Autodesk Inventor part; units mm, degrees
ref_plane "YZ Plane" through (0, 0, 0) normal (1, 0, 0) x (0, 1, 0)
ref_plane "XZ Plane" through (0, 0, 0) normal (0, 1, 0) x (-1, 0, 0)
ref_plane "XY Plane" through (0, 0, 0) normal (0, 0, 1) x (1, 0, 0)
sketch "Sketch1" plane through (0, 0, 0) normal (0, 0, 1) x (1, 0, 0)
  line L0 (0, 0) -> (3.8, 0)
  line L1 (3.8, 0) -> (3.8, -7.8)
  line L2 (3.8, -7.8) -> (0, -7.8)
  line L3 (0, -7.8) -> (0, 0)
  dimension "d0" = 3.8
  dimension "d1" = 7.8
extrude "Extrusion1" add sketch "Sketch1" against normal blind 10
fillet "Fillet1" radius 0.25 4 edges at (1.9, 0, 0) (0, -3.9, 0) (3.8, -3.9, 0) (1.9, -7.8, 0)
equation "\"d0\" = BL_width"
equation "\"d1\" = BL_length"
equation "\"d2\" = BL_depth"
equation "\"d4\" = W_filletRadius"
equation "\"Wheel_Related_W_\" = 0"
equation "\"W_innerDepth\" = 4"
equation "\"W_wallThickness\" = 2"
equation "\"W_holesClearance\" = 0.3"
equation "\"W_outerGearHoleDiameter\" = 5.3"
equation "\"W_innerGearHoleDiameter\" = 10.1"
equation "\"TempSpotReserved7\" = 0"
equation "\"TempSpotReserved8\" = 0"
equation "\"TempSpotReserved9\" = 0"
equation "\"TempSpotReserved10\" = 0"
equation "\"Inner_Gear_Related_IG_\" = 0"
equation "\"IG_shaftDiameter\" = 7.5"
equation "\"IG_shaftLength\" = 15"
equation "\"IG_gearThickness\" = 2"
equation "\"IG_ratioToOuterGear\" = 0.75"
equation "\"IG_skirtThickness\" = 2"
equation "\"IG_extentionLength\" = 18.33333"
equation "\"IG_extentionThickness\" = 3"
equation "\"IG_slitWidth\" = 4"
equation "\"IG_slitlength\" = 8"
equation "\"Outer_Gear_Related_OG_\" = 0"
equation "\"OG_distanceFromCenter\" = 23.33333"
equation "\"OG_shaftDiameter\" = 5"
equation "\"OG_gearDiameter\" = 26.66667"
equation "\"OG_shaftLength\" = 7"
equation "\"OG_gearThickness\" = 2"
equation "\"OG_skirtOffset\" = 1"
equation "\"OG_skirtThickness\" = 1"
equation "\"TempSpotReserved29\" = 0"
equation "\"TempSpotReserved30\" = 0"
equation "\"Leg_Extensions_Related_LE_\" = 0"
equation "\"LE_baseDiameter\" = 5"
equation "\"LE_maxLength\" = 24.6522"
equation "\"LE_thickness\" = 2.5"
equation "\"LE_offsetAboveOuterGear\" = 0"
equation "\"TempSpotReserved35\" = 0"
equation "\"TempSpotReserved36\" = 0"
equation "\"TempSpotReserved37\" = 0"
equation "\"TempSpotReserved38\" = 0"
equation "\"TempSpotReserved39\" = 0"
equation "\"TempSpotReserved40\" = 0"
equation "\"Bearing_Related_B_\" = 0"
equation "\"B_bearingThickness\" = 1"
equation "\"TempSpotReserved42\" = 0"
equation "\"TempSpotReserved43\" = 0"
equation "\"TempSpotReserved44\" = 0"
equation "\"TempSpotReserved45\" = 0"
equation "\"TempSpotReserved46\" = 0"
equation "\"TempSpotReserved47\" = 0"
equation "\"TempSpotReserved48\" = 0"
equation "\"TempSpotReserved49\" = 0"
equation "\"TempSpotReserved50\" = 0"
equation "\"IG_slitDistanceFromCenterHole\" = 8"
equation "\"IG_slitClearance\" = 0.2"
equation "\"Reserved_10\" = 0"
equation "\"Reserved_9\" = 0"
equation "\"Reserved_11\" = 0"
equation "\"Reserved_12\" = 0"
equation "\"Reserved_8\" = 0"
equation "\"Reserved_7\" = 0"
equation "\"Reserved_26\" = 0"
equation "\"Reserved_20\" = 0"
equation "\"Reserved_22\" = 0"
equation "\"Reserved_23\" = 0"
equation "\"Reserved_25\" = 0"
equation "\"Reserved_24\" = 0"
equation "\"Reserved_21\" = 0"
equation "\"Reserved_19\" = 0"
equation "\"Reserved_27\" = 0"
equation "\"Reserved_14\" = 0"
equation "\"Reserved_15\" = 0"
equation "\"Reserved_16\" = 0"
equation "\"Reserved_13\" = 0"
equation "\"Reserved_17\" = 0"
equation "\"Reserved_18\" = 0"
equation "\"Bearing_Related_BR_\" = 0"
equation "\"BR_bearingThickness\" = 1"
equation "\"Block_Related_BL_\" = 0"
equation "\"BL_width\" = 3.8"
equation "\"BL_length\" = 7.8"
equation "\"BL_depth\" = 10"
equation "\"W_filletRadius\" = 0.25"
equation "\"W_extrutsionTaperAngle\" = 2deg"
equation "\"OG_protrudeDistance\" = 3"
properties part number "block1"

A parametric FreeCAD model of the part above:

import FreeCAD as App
import Part
import Sketcher
from FreeCAD import Vector


def edges_at(feature, points):
    """Names of the edges that pass closest to the given points."""
    edges = feature.Shape.Edges
    near = lambda p: min(range(len(edges)), key=lambda i: edges[i].distToShape(Part.Vertex(*p))[0])
    return sorted({f"Edge{near(p) + 1}" for p in points})

doc = App.newDocument("Part")
body = doc.addObject("PartDesign::Body", "Body")

# Sketch on XY plane
sketch1 = doc.addObject("Sketcher::SketchObject", "Sketch")
body.addObject(sketch1)
sketch1.AttachmentSupport = (doc.XY_Plane, [""])
sketch1.MapMode = "FlatFace"
sketch1.addGeometry([
    Part.LineSegment(Vector(3.8, 0, 0), Vector(0, 0, 0)),
    Part.LineSegment(Vector(0, 0, 0), Vector(0, -7.8, 0)),
    Part.LineSegment(Vector(0, -7.8, 0), Vector(3.8, -7.8, 0)),
    Part.LineSegment(Vector(3.8, -7.8, 0), Vector(3.8, 0, 0)),
], False)
sketch1.addConstraint([
    Sketcher.Constraint("Coincident", 0, 2, 1, 1),
    Sketcher.Constraint("Coincident", 1, 2, 2, 1),
    Sketcher.Constraint("Coincident", 2, 2, 3, 1),
    Sketcher.Constraint("Coincident", 3, 2, 0, 1),
    Sketcher.Constraint("Horizontal", 0),
    Sketcher.Constraint("Vertical", 1),
    Sketcher.Constraint("Horizontal", 2),
    Sketcher.Constraint("Vertical", 3),
    Sketcher.Constraint("Coincident", 0, 2, -1, 1),
    Sketcher.Constraint("DistanceX", 0, 2, 0, 1, 3.8),
    Sketcher.Constraint("DistanceY", 1, 2, 1, 1, 7.8),
])
pad1 = doc.addObject("PartDesign::Pad", "Pad")
body.addObject(pad1)
pad1.Profile = sketch1
pad1.Length = 10
pad1.Reversed = True
doc.recompute()

fillet = doc.addObject("PartDesign::Fillet", "Fillet")
body.addObject(fillet)
fillet.Base = (pad1, edges_at(pad1, [
    (1.9, 0, 0),
    (0, -3.9, 0),
    (3.8, -3.9, 0),
    (1.9, -7.8, 0),
]))
fillet.Radius = 0.25

doc.recompute()
